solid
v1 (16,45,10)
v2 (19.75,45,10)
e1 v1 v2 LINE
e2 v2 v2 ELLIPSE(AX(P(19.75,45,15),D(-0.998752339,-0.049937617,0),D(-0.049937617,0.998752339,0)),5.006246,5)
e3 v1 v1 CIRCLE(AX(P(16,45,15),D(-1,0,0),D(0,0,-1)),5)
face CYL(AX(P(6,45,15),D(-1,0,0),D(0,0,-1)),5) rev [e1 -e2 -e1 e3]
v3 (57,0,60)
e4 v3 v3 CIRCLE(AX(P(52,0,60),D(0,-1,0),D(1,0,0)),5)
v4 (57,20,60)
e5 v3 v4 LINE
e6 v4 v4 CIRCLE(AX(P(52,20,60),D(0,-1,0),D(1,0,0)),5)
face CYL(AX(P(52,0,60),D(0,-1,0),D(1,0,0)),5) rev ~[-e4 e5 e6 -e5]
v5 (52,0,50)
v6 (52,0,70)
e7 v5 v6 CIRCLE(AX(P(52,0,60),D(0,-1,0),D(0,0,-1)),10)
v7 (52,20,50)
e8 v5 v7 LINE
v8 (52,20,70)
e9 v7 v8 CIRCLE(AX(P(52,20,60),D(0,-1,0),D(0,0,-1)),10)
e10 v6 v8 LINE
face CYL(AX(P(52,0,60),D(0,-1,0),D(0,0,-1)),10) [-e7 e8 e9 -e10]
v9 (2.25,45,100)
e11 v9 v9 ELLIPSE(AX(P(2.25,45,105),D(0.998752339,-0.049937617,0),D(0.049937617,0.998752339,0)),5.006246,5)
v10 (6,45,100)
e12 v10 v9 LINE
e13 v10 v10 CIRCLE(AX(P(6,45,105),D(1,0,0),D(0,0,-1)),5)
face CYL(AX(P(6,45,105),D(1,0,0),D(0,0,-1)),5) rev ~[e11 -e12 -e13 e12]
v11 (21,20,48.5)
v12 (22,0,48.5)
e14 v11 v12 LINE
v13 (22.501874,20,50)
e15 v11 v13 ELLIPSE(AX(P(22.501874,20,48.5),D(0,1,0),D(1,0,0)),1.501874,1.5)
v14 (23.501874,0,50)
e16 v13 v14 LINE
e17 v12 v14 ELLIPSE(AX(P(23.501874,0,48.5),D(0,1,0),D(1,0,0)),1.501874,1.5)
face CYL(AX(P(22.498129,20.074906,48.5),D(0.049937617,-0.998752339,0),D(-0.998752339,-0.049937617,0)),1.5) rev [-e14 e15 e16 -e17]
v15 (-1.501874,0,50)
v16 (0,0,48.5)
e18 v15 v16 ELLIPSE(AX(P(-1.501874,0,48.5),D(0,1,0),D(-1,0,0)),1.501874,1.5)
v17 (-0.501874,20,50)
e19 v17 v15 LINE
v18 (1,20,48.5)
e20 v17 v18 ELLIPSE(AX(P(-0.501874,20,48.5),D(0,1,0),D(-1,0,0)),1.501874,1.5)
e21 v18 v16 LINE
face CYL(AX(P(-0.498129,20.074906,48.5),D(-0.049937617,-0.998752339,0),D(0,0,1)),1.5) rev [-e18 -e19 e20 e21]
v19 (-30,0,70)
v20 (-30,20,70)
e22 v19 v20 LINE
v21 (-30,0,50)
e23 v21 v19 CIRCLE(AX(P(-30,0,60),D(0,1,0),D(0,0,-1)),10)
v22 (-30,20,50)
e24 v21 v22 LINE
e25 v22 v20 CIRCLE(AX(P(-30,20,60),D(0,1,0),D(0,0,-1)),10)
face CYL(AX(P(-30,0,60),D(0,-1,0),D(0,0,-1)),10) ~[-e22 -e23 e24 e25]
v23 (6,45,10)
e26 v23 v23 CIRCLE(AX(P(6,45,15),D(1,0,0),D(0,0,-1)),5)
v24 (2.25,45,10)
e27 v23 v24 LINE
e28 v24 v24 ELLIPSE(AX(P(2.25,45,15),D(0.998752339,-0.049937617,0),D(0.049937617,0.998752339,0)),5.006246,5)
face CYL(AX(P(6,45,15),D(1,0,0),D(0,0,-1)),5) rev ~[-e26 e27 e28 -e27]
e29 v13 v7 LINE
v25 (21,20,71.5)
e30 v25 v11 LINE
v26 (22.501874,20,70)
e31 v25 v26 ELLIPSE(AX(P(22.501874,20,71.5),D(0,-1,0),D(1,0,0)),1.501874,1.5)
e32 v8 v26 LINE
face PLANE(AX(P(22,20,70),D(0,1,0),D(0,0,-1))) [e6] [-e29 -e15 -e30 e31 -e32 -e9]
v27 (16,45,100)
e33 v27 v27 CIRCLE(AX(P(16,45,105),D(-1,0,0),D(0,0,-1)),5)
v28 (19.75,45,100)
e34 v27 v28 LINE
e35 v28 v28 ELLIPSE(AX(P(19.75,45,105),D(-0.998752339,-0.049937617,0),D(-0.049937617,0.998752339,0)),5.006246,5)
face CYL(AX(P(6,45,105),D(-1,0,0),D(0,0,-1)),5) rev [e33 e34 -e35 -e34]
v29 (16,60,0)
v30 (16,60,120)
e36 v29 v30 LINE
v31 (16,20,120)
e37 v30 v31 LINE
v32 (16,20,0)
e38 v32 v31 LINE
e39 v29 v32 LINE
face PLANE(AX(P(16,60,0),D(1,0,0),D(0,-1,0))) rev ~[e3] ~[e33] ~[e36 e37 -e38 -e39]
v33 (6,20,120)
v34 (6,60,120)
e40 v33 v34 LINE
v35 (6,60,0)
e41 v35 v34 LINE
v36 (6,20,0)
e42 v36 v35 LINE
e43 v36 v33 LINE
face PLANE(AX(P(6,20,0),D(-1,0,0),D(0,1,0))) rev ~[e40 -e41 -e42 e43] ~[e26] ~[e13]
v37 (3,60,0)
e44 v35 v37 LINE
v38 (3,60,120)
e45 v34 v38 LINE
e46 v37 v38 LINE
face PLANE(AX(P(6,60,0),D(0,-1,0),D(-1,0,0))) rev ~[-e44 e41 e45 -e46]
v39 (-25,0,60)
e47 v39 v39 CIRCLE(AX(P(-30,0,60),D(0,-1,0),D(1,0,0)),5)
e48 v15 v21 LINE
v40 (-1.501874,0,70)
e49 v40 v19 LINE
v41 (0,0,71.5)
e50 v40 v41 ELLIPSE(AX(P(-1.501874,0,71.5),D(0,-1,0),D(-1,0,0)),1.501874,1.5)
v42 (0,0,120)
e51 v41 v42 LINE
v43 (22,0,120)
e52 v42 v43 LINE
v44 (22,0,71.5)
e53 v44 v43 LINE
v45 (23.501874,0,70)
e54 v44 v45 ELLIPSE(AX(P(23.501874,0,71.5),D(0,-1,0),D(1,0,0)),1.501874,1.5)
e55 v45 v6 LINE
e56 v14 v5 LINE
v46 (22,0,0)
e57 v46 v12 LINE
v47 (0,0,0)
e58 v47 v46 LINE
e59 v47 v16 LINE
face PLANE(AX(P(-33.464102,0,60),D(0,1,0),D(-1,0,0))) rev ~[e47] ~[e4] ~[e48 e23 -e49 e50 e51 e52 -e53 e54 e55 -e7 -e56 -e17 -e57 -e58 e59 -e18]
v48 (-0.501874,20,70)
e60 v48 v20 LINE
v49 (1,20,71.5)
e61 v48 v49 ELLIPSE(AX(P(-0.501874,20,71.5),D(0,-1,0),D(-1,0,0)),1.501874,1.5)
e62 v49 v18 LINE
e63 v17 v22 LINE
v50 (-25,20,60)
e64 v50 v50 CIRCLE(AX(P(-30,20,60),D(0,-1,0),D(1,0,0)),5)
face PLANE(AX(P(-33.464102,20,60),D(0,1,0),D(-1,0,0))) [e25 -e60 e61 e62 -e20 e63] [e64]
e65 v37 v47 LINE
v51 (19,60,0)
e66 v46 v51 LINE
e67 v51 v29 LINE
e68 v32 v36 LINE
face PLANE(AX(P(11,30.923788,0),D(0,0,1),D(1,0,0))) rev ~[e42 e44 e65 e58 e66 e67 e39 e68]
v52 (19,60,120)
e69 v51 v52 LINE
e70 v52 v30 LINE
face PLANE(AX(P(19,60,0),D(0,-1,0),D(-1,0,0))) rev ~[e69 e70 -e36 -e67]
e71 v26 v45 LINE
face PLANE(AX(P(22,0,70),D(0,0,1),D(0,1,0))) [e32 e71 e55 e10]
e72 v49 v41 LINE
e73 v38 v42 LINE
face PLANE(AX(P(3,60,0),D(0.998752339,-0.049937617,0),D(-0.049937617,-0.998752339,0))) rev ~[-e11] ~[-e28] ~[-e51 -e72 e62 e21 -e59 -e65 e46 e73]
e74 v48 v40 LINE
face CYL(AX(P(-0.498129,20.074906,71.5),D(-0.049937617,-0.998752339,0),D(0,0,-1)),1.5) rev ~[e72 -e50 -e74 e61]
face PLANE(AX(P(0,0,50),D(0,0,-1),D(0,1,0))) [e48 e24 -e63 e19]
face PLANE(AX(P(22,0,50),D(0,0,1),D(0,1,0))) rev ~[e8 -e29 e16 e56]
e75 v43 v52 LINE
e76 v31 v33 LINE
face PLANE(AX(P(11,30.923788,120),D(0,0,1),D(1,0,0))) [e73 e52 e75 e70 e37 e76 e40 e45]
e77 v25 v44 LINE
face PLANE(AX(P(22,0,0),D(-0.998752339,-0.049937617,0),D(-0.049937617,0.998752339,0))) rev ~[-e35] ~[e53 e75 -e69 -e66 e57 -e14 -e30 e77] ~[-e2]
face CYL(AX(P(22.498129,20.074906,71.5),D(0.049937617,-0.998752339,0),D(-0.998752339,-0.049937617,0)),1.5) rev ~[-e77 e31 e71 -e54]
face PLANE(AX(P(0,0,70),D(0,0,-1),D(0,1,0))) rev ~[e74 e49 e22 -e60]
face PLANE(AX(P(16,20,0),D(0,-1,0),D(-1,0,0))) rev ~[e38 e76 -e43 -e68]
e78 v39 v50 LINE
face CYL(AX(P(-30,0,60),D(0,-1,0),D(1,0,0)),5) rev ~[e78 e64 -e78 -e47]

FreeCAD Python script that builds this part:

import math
import FreeCAD as App
import Part
import Sketcher

V = App.Vector
Q = App.Units.Quantity


def edges_at(feature, points):
    """Names of the edges that pass closest to the given points."""
    edges = feature.Shape.Edges
    near = lambda p: min(range(len(edges)), key=lambda i: edges[i].distToShape(Part.Vertex(*p))[0])
    return sorted({f"Edge{near(p) + 1}" for p in points})

doc = App.newDocument("Part")
body = doc.addObject("PartDesign::Body", "Body")

# Sketch on XY plane
sketch1 = doc.addObject("Sketcher::SketchObject", "Sketch")
body.addObject(sketch1)
sketch1.AttachmentSupport = (doc.XY_Plane, [""])
sketch1.MapMode = "FlatFace"
sketch1.addGeometry([
    Part.LineSegment(V(0, 0, 0), V(22, 0, 0)),  # 0
    Part.LineSegment(V(22, 0, 0), V(19, 60, 0)),  # 1
    Part.LineSegment(V(19, 60, 0), V(16, 60, 0)),  # 2
    Part.LineSegment(V(16, 60, 0), V(16, 20, 0)),  # 3
    Part.LineSegment(V(16, 20, 0), V(6, 20, 0)),  # 4
    Part.LineSegment(V(6, 20, 0), V(6, 60, 0)),  # 5
    Part.LineSegment(V(6, 60, 0), V(3, 60, 0)),  # 6
    Part.LineSegment(V(3, 60, 0), V(0, 0, 0)),  # 7
], False)
sketch1.addConstraint([
    Sketcher.Constraint("Coincident", 0, 2, 1, 1),
    Sketcher.Constraint("Coincident", 1, 2, 2, 1),
    Sketcher.Constraint("Coincident", 2, 2, 3, 1),
    Sketcher.Constraint("Coincident", 3, 2, 4, 1),
    Sketcher.Constraint("Coincident", 4, 2, 5, 1),
    Sketcher.Constraint("Coincident", 5, 2, 6, 1),
    Sketcher.Constraint("Coincident", 6, 2, 7, 1),
    Sketcher.Constraint("Coincident", 7, 2, 0, 1),
    Sketcher.Constraint("Horizontal", 0),
    Sketcher.Constraint("Horizontal", 2),
    Sketcher.Constraint("Vertical", 3),
    Sketcher.Constraint("Horizontal", 4),
    Sketcher.Constraint("Vertical", 5),
    Sketcher.Constraint("Horizontal", 6),
    Sketcher.Constraint("Coincident", 7, 2, -1, 1),
    Sketcher.Constraint("Horizontal", 2, 2, 5, 2),
    Sketcher.Constraint("Equal", 2, 6),
    Sketcher.Constraint("Equal", 1, 7),
    Sketcher.Constraint("DistanceX", 0, 1, 0, 2, Q("22 mm")),
    Sketcher.Constraint("DistanceX", 2, 2, 2, 1, Q("3 mm")),
    Sketcher.Constraint("DistanceX", 4, 2, 4, 1, Q("10 mm")),
    Sketcher.Constraint("DistanceY", 3, 2, 3, 1, Q("40 mm")),
    Sketcher.Constraint("DistanceY", -1, 1, 1, 2, Q("60 mm")),
])
pad1 = doc.addObject("PartDesign::Pad", "Pad")
body.addObject(pad1)
pad1.Profile = sketch1
pad1.Length = 120

# Sketch on YZ plane
sketch2 = doc.addObject("Sketcher::SketchObject", "Sketch001")
body.addObject(sketch2)
sketch2.AttachmentSupport = (doc.YZ_Plane, [""])
sketch2.MapMode = "FlatFace"
sketch2.addGeometry([
    Part.LineSegment(V(20, 70, 0), V(0, 70, 0)),
    Part.LineSegment(V(0, 70, 0), V(0, 50, 0)),
    Part.LineSegment(V(0, 50, 0), V(20, 50, 0)),
    Part.LineSegment(V(20, 50, 0), V(20, 70, 0)),
], False)
sketch2.addConstraint([
    Sketcher.Constraint("Coincident", 0, 2, 1, 1),
    Sketcher.Constraint("Coincident", 1, 2, 2, 1),
    Sketcher.Constraint("Coincident", 2, 2, 3, 1),
    Sketcher.Constraint("Coincident", 3, 2, 0, 1),
    Sketcher.Constraint("Horizontal", 0),
    Sketcher.Constraint("Vertical", 1),
    Sketcher.Constraint("Horizontal", 2),
    Sketcher.Constraint("Vertical", 3),
    Sketcher.Constraint("PointOnObject", 0, 2, -2),
    Sketcher.Constraint("Equal", 2, 1),
    Sketcher.Constraint("DistanceX", 0, 2, 0, 1, Q("20 mm")),
    Sketcher.Constraint("DistanceY", -1, 1, 0, 2, Q("70 mm")),
])
pad2 = doc.addObject("PartDesign::Pad", "Pad001")
body.addObject(pad2)
pad2.Profile = sketch2
pad2.Type = "TwoLengths"
pad2.Length = 4
pad2.Length2 = 30

# Sketch on YZ plane
sketch3 = doc.addObject("Sketcher::SketchObject", "Sketch002")
body.addObject(sketch3)
sketch3.AttachmentSupport = (doc.YZ_Plane, [""])
sketch3.MapMode = "FlatFace"
sketch3.AttachmentOffset = App.Placement(V(0, 0, 22), App.Rotation())
sketch3.addGeometry([
    Part.LineSegment(V(20, 70, 0), V(0, 70, 0)),
    Part.LineSegment(V(0, 70, 0), V(0, 50, 0)),
    Part.LineSegment(V(0, 50, 0), V(20, 50, 0)),
    Part.LineSegment(V(20, 50, 0), V(20, 70, 0)),
], False)
sketch3.addConstraint([
    Sketcher.Constraint("Coincident", 0, 2, 1, 1),
    Sketcher.Constraint("Coincident", 1, 2, 2, 1),
    Sketcher.Constraint("Coincident", 2, 2, 3, 1),
    Sketcher.Constraint("Coincident", 3, 2, 0, 1),
    Sketcher.Constraint("Horizontal", 0),
    Sketcher.Constraint("Vertical", 1),
    Sketcher.Constraint("Horizontal", 2),
    Sketcher.Constraint("Vertical", 3),
    Sketcher.Constraint("PointOnObject", 0, 2, -2),
    Sketcher.Constraint("Equal", 2, 1),
    Sketcher.Constraint("DistanceX", 0, 2, 0, 1, Q("20 mm")),
    Sketcher.Constraint("DistanceY", -1, 1, 0, 2, Q("70 mm")),
])
pad3 = doc.addObject("PartDesign::Pad", "Pad002")
body.addObject(pad3)
pad3.Profile = sketch3
pad3.Type = "TwoLengths"
pad3.Length = 30
pad3.Length2 = 5

# Sketch on XZ plane
sketch4 = doc.addObject("Sketcher::SketchObject", "Sketch003")
body.addObject(sketch4)
sketch4.AttachmentSupport = (doc.XZ_Plane, [""])
sketch4.MapMode = "FlatFace"
sketch4.addGeometry([
    Part.LineSegment(V(-30, 50, 0), V(-30, 70, 0)),
    Part.ArcOfCircle(Part.Circle(V(-30, 60, 0), V(0, 0, 1), 10), math.radians(90), math.radians(270)),
    Part.LineSegment(V(52, 70, 0), V(52, 50, 0)),
    Part.ArcOfCircle(Part.Circle(V(52, 60, 0), V(0, 0, 1), 10), math.radians(-90), math.radians(90)),
], False)
sketch4.addConstraint([
    Sketcher.Constraint("Coincident", 0, 1, 1, 2),
    Sketcher.Constraint("Coincident", 1, 1, 0, 2),
    Sketcher.Constraint("Coincident", 2, 1, 3, 2),
    Sketcher.Constraint("Coincident", 3, 1, 2, 2),
    Sketcher.Constraint("Vertical", 0),
    Sketcher.Constraint("Vertical", 2),
    Sketcher.Constraint("Equal", 1, 3),
    Sketcher.Constraint("Horizontal", 1, 3, 3, 3),
    Sketcher.Constraint("Vertical", 1, 3, 0, 1),
    Sketcher.Constraint("Vertical", 3, 3, 2, 1),
    Sketcher.Constraint("Radius", 1, Q("10 mm")),
    Sketcher.Constraint("DistanceX", 1, 3, -1, 1, Q("30 mm")),
    Sketcher.Constraint("DistanceY", -1, 1, 1, 3, Q("60 mm")),
    Sketcher.Constraint("DistanceX", -1, 1, 3, 3, Q("52 mm")),
])
pad4 = doc.addObject("PartDesign::Pad", "Pad003")
body.addObject(pad4)
pad4.Profile = sketch4
pad4.Length = 20
pad4.Reversed = True

# Sketch on XZ plane
sketch5 = doc.addObject("Sketcher::SketchObject", "Sketch004")
body.addObject(sketch5)
sketch5.AttachmentSupport = (doc.XZ_Plane, [""])
sketch5.MapMode = "FlatFace"
sketch5.addGeometry([
    Part.Circle(V(-30, 60, 0), V(0, 0, 1), 5),
    Part.Circle(V(52, 60, 0), V(0, 0, 1), 5),
], False)
sketch5.addConstraint([
    Sketcher.Constraint("Equal", 0, 1),
    Sketcher.Constraint("Horizontal", 0, 3, 1, 3),
    Sketcher.Constraint("Diameter", 0, Q("10 mm")),
    Sketcher.Constraint("DistanceX", 0, 3, -1, 1, Q("30 mm")),
    Sketcher.Constraint("DistanceY", -1, 1, 0, 3, Q("60 mm")),
    Sketcher.Constraint("DistanceX", -1, 1, 1, 3, Q("52 mm")),
])
pocket1 = doc.addObject("PartDesign::Pocket", "Pocket")
body.addObject(pocket1)
pocket1.Profile = sketch5
pocket1.Length = 20
doc.recompute()

fillet = doc.addObject("PartDesign::Fillet", "Fillet")
body.addObject(fillet)
fillet.Base = (pocket1, edges_at(pocket1, [
    (0.5, 10, 70),
    (0.5, 10, 50),
    (21.5, 10, 70),
    (21.5, 10, 50),
]))
fillet.Radius = 1.5

# Sketch on YZ plane
sketch6 = doc.addObject("Sketcher::SketchObject", "Sketch005")
body.addObject(sketch6)
sketch6.AttachmentSupport = (doc.YZ_Plane, [""])
sketch6.MapMode = "FlatFace"
sketch6.AttachmentOffset = App.Placement(V(0, 0, 6), App.Rotation())
sketch6.addGeometry([
    Part.Circle(V(45, 105, 0), V(0, 0, 1), 5),
    Part.Circle(V(45, 15, 0), V(0, 0, 1), 5),
], False)
sketch6.addConstraint([
    Sketcher.Constraint("Equal", 0, 1),
    Sketcher.Constraint("Vertical", 0, 3, 1, 3),
    Sketcher.Constraint("Diameter", 0, Q("10 mm")),
    Sketcher.Constraint("DistanceX", -1, 1, 0, 3, Q("45 mm")),
    Sketcher.Constraint("DistanceY", -1, 1, 0, 3, Q("105 mm")),
    Sketcher.Constraint("DistanceY", -1, 1, 1, 3, Q("15 mm")),
])
pocket2 = doc.addObject("PartDesign::Pocket", "Pocket001")
body.addObject(pocket2)
pocket2.Profile = sketch6
pocket2.Type = "ThroughAll"
pocket2.Midplane = True

doc.recompute()
